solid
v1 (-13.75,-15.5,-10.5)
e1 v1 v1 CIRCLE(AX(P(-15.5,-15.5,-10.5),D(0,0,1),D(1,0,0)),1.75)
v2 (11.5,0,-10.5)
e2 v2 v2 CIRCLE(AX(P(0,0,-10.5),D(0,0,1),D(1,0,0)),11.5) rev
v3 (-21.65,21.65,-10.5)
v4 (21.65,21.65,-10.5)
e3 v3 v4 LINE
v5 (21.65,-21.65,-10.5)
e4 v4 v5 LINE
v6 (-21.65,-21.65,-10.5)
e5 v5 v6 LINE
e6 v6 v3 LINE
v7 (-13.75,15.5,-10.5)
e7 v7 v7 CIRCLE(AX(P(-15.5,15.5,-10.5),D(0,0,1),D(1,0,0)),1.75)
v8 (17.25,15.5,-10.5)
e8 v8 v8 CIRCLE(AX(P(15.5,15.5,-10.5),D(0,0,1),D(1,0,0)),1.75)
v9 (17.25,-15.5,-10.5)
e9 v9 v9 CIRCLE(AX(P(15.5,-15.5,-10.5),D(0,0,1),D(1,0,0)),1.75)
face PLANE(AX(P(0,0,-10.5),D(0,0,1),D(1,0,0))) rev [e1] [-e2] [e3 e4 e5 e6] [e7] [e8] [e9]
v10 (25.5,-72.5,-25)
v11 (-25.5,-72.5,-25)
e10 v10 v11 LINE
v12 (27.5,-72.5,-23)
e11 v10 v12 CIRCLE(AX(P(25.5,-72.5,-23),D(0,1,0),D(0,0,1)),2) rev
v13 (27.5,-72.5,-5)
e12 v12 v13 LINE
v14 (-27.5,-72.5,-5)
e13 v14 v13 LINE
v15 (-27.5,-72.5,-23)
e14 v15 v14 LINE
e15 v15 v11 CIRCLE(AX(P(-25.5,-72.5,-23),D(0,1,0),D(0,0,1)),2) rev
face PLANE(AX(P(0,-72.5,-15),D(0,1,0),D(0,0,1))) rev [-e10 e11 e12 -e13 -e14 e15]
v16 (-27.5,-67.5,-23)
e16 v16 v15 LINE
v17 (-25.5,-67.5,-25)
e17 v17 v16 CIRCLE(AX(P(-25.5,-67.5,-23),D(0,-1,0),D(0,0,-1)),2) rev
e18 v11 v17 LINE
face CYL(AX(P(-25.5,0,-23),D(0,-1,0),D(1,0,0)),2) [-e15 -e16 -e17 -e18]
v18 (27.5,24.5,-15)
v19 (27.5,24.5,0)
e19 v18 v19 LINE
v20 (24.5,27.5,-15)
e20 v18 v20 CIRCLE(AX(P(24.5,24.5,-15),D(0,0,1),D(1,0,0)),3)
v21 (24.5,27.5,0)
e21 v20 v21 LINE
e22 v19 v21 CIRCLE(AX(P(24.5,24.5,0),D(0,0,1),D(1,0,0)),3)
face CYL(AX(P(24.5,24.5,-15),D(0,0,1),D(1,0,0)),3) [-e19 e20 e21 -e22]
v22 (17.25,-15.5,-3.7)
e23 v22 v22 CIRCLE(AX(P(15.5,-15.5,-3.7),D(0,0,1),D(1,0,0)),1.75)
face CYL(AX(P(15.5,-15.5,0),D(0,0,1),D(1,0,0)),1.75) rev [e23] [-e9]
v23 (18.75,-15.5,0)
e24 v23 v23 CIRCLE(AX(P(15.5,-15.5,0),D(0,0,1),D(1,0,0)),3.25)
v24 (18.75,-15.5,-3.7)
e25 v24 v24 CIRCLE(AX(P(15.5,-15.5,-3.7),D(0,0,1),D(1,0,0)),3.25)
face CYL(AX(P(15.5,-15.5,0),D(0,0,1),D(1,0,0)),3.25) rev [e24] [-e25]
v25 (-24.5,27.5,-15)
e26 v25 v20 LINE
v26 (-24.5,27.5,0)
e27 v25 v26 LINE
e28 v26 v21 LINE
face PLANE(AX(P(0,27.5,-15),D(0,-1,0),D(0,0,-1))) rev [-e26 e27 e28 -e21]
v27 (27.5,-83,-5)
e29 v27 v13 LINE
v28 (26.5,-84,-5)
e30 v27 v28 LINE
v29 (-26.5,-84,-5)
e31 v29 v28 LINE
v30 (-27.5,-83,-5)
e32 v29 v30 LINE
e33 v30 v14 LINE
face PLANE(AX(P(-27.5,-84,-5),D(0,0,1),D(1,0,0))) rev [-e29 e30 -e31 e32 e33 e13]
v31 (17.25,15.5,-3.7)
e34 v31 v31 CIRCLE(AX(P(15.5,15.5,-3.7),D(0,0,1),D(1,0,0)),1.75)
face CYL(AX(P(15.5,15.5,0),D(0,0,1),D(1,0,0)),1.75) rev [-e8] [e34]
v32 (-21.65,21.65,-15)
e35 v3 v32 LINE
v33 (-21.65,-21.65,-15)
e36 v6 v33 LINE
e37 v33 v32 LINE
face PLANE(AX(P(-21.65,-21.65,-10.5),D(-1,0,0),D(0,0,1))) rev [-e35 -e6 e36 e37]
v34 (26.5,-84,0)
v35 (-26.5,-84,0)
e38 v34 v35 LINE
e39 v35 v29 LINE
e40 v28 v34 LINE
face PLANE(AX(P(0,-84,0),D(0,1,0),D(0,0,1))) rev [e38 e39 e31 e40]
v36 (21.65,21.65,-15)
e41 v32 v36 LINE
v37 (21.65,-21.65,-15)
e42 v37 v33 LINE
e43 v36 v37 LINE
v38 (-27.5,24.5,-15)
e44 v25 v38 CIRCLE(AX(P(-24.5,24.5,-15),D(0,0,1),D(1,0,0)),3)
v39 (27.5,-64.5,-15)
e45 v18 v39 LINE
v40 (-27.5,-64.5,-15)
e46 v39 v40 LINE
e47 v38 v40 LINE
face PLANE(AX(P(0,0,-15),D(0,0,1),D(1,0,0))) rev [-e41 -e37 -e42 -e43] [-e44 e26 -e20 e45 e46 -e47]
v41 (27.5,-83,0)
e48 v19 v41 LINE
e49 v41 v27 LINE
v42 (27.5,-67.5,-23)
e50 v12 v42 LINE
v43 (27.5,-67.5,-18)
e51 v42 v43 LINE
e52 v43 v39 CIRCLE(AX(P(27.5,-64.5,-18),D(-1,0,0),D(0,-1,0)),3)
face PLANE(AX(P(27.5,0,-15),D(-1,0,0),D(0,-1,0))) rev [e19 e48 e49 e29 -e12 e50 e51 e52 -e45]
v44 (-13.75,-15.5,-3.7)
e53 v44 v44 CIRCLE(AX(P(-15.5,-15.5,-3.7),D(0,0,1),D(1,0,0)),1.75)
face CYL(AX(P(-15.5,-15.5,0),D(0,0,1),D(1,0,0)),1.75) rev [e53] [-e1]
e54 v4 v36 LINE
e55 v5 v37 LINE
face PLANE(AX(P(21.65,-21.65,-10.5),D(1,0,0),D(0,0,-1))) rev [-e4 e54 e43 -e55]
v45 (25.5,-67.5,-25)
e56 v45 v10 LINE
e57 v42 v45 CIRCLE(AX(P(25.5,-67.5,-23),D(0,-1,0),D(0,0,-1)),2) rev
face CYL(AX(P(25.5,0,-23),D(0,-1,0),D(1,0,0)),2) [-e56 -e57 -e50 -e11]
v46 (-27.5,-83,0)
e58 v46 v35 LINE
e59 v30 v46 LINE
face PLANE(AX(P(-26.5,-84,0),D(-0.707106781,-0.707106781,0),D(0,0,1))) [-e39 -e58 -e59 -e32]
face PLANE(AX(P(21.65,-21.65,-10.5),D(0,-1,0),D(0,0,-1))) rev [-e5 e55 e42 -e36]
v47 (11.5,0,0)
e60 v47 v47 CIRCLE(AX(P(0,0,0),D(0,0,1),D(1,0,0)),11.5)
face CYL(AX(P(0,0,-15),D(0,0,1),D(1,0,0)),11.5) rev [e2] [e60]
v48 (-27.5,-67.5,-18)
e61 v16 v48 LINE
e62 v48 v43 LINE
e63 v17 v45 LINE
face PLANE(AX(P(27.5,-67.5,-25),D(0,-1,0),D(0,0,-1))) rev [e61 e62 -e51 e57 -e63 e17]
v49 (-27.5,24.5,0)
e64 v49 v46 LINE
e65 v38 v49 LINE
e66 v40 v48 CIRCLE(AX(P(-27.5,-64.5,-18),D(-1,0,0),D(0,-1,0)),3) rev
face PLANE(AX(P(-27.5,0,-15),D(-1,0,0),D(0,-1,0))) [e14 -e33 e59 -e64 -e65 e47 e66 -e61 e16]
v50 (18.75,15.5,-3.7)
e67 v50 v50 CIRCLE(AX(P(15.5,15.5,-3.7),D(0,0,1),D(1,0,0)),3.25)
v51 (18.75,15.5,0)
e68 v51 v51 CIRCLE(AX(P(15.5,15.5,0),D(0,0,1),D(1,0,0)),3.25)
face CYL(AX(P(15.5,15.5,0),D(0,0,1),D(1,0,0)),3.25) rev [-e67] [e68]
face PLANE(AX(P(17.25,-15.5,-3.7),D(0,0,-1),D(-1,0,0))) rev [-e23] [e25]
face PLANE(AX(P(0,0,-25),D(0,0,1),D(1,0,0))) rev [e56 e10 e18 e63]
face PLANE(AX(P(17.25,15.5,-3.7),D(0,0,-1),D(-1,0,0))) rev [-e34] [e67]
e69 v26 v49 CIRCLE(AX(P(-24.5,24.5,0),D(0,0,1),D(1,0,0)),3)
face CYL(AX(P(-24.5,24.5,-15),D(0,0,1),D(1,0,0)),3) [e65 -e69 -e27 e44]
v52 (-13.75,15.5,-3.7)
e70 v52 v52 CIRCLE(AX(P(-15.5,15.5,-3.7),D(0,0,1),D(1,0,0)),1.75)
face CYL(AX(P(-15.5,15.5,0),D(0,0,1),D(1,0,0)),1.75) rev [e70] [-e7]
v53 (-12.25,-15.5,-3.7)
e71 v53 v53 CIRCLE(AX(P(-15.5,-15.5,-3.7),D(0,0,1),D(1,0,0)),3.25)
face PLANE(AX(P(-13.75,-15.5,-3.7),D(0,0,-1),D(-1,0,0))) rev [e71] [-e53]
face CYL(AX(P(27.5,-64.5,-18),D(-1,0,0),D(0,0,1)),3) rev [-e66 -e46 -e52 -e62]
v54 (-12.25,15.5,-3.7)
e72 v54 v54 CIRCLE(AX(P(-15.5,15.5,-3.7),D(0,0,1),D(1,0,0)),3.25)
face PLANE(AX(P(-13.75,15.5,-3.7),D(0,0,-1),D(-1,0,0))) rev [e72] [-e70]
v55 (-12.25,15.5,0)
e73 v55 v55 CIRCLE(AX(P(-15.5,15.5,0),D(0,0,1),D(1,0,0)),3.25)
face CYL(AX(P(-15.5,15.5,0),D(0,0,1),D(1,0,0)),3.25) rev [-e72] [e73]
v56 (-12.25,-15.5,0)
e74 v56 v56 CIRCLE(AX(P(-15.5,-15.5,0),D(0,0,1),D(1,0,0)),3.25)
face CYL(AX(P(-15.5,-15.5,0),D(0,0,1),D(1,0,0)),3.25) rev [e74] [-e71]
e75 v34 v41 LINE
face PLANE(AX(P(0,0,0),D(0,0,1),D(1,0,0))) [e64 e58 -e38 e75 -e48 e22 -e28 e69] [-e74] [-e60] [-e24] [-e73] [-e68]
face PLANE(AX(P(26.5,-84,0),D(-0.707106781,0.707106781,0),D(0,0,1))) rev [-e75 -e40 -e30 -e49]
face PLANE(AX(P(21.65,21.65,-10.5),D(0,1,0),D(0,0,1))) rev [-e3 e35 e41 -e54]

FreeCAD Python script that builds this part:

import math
import FreeCAD as App
import Part
import Sketcher
Q = App.Units.Quantity


def edges_at(feature, points):
    """Names of the edges that pass closest to the given points."""
    edges = feature.Shape.Edges
    near = lambda p: min(range(len(edges)), key=lambda i: edges[i].distToShape(Part.Vertex(*p))[0])
    return sorted({f"Edge{near(p) + 1}" for p in points})


def add_polygon(sketch, points):
    """Adds a closed chain of lines whose ends are joined by coincident constraints."""
    first, n = sketch.GeometryCount, len(points)
    for a, b in zip(points, points[1:] + points[:1]):
        sketch.addGeometry(Part.LineSegment(App.Vector(*a, 0), App.Vector(*b, 0)), False)
    for i in range(n):
        sketch.addConstraint(Sketcher.Constraint("Coincident", first + i, 2, first + (i + 1) % n, 1))

doc = App.newDocument("Part")
body = doc.addObject("PartDesign::Body", "Body")

# Sketch on XY plane
sketch1 = body.newObject("Sketcher::SketchObject", "Sketch")
sketch1.AttachmentSupport = (doc.getObject("XY_Plane"), [""])
sketch1.MapMode = "FlatFace"
sketch1.addGeometry([
    Part.LineSegment(App.Vector(-27.5, 24.5, 0), App.Vector(-27.5, -72.5, 0)),  # 0
    Part.LineSegment(App.Vector(-27.5, -72.5, 0), App.Vector(27.5, -72.5, 0)),  # 1
    Part.LineSegment(App.Vector(27.5, -72.5, 0), App.Vector(27.5, 24.5, 0)),  # 2
    Part.ArcOfCircle(Part.Circle(App.Vector(24.5, 24.5, 0), App.Vector(0, 0, 1), 3), math.radians(0), math.radians(90)),  # 3
    Part.LineSegment(App.Vector(24.5, 27.5, 0), App.Vector(-24.5, 27.5, 0)),  # 4
    Part.ArcOfCircle(Part.Circle(App.Vector(-24.5, 24.5, 0), App.Vector(0, 0, 1), 3), math.radians(90), math.radians(180)),  # 5
    Part.Circle(App.Vector(0, 0, 0), App.Vector(0, 0, 1), 11.5),  # 6
], False)
sketch1.addConstraint([
    Sketcher.Constraint("Coincident", 0, 2, 1, 1),
    Sketcher.Constraint("Coincident", 1, 2, 2, 1),
    Sketcher.Constraint("Tangent", 2, 2, 3, 1),
    Sketcher.Constraint("Tangent", 3, 2, 4, 1),
    Sketcher.Constraint("Tangent", 4, 2, 5, 1),
    Sketcher.Constraint("Tangent", 5, 2, 0, 1),
    Sketcher.Constraint("Vertical", 0),
    Sketcher.Constraint("Horizontal", 1),
    Sketcher.Constraint("Vertical", 2),
    Sketcher.Constraint("Horizontal", 4),
    Sketcher.Constraint("Coincident", 6, 3, -1, 1),
    Sketcher.Constraint("Equal", 3, 5),
    Sketcher.Constraint("Diameter", 6, Q("23 mm")),
    Sketcher.Constraint("Radius", 3, Q("3 mm")),
    Sketcher.Constraint("DistanceX", 1, 1, 1, 2, Q("55 mm")),
    Sketcher.Constraint("DistanceY", 0, 2, 0, 1, Q("97 mm")),
    Sketcher.Constraint("DistanceX", -1, 1, 3, 3, Q("24.5 mm")),
    Sketcher.Constraint("DistanceY", -1, 1, 3, 3, Q("24.5 mm")),
])
pad1 = body.newObject("PartDesign::Pad", "Pad")
pad1.Profile = sketch1
pad1.Length = 15
pad1.Reversed = True

# Sketch on XZ plane
sketch2 = body.newObject("Sketcher::SketchObject", "Sketch001")
sketch2.AttachmentSupport = (doc.getObject("XZ_Plane"), [""])
sketch2.MapMode = "FlatFace"
sketch2.AttachmentOffset = App.Placement(App.Vector(0, 0, 72.5), App.Rotation())
add_polygon(sketch2, [(-28, 0), (-28, -5), (28, -5), (28, 0)])  # lines 0-3
sketch2.addConstraint([
    Sketcher.Constraint("Vertical", 0),
    Sketcher.Constraint("Horizontal", 1),
    Sketcher.Constraint("Vertical", 2),
    Sketcher.Constraint("Horizontal", 3),
    Sketcher.Constraint("Symmetric", 2, 2, 3, 2, -1, 1),
    Sketcher.Constraint("DistanceX", 1, 1, 1, 2, Q("55 mm")),
    Sketcher.Constraint("DistanceY", 0, 2, 0, 1, Q("5 mm")),
])
pad2 = body.newObject("PartDesign::Pad", "Pad001")
pad2.Profile = sketch2
pad2.Length = 11.5
doc.recompute()

chamfer = body.newObject("PartDesign::Chamfer", "Chamfer")
chamfer.Base = (pad2, edges_at(pad2, [(-27.5, -84, -2.5), (27.5, -84, -2.5)]))
chamfer.Size = 1

# Sketch on XY plane
sketch3 = body.newObject("Sketcher::SketchObject", "Sketch002")
sketch3.AttachmentSupport = (doc.getObject("XY_Plane"), [""])
sketch3.MapMode = "FlatFace"
sketch3.AttachmentOffset = App.Placement(App.Vector(0, 0, -15), App.Rotation())
add_polygon(sketch3, [(22, 22), (22, -22), (-22, -22), (-22, 22)])  # lines 0-3
sketch3.addConstraint([
    Sketcher.Constraint("Vertical", 0),
    Sketcher.Constraint("Horizontal", 1),
    Sketcher.Constraint("Vertical", 2),
    Sketcher.Constraint("Horizontal", 3),
    Sketcher.Constraint("Symmetric", 0, 2, 2, 2, -1, 1),
    Sketcher.Constraint("Equal", 3, 0),
    Sketcher.Constraint("DistanceX", 1, 2, 1, 1, Q("43.3 mm")),
])
pocket1 = body.newObject("PartDesign::Pocket", "Pocket")
pocket1.Profile = sketch3
pocket1.Length = 4.5
pocket1.Reversed = True

# Sketch on XY plane
sketch4 = body.newObject("Sketcher::SketchObject", "Sketch003")
sketch4.AttachmentSupport = (doc.getObject("XY_Plane"), [""])
sketch4.MapMode = "FlatFace"
sketch4.addGeometry([
    Part.Circle(App.Vector(15.5, 15.5, 0), App.Vector(0, 0, 1), 1.8),
    Part.Circle(App.Vector(-15.5, -15.5, 0), App.Vector(0, 0, 1), 1.8),
    Part.Circle(App.Vector(-15.5, 15.5, 0), App.Vector(0, 0, 1), 1.8),
    Part.Circle(App.Vector(15.5, -15.5, 0), App.Vector(0, 0, 1), 1.8),
], False)
sketch4.addConstraint([
    Sketcher.Constraint("Equal", 0, 1),
    Sketcher.Constraint("Equal", 1, 2),
    Sketcher.Constraint("Equal", 2, 3),
    Sketcher.Constraint("Symmetric", 0, 3, 1, 3, -1, 1),
    Sketcher.Constraint("Symmetric", 2, 3, 3, 3, -1, 1),
    Sketcher.Constraint("Symmetric", 0, 3, 2, 3, -2),
    Sketcher.Constraint("Diameter", 0, Q("3.5 mm")),
    Sketcher.Constraint("DistanceX", 1, 3, 0, 3, Q("31 mm")),
    Sketcher.Constraint("DistanceY", 1, 3, 0, 3, Q("31 mm")),
])
doc.recompute()
hole = body.newObject("PartDesign::Hole", "Hole")
hole.Profile = sketch4
hole.ThreadType = "None"
hole.Diameter = 3.5
hole.DepthType = "ThroughAll"
hole.HoleCutType = "Counterbore"
hole.HoleCutDiameter = 6.5
hole.HoleCutDepth = 3.7

# Sketch on XY plane
sketch5 = body.newObject("Sketcher::SketchObject", "Sketch004")
sketch5.AttachmentSupport = (doc.getObject("XY_Plane"), [""])
sketch5.MapMode = "FlatFace"
sketch5.AttachmentOffset = App.Placement(App.Vector(0, 0, -15), App.Rotation())
add_polygon(sketch5, [(28, -68), (28, -72), (-28, -72), (-28, -68)])  # lines 0-3
sketch5.addConstraint([
    Sketcher.Constraint("Vertical", 0),
    Sketcher.Constraint("Horizontal", 1),
    Sketcher.Constraint("Vertical", 2),
    Sketcher.Constraint("Horizontal", 3),
    Sketcher.Constraint("DistanceX", 1, 2, 1, 1, Q("55 mm")),
    Sketcher.Constraint("DistanceY", 0, 2, 0, 1, Q("5 mm")),
    Sketcher.Constraint("DistanceX", -1, 1, 0, 2, Q("27.5 mm")),
    Sketcher.Constraint("DistanceY", 0, 2, -1, 1, Q("72.5 mm")),
])
pad3 = body.newObject("PartDesign::Pad", "Pad002")
pad3.Profile = sketch5
pad3.Length = 10
pad3.Reversed = True
doc.recompute()

fillet = body.newObject("PartDesign::Fillet", "Fillet")
fillet.Base = (pad3, edges_at(pad3, [(27.5, -70, -25), (-27.5, -70, -25)]))
fillet.Radius = 2
doc.recompute()

fillet2 = body.newObject("PartDesign::Fillet", "Fillet001")
fillet2.Base = (fillet, edges_at(fillet, [(0, -67.5, -15)]))
fillet2.Radius = 3

doc.recompute()
